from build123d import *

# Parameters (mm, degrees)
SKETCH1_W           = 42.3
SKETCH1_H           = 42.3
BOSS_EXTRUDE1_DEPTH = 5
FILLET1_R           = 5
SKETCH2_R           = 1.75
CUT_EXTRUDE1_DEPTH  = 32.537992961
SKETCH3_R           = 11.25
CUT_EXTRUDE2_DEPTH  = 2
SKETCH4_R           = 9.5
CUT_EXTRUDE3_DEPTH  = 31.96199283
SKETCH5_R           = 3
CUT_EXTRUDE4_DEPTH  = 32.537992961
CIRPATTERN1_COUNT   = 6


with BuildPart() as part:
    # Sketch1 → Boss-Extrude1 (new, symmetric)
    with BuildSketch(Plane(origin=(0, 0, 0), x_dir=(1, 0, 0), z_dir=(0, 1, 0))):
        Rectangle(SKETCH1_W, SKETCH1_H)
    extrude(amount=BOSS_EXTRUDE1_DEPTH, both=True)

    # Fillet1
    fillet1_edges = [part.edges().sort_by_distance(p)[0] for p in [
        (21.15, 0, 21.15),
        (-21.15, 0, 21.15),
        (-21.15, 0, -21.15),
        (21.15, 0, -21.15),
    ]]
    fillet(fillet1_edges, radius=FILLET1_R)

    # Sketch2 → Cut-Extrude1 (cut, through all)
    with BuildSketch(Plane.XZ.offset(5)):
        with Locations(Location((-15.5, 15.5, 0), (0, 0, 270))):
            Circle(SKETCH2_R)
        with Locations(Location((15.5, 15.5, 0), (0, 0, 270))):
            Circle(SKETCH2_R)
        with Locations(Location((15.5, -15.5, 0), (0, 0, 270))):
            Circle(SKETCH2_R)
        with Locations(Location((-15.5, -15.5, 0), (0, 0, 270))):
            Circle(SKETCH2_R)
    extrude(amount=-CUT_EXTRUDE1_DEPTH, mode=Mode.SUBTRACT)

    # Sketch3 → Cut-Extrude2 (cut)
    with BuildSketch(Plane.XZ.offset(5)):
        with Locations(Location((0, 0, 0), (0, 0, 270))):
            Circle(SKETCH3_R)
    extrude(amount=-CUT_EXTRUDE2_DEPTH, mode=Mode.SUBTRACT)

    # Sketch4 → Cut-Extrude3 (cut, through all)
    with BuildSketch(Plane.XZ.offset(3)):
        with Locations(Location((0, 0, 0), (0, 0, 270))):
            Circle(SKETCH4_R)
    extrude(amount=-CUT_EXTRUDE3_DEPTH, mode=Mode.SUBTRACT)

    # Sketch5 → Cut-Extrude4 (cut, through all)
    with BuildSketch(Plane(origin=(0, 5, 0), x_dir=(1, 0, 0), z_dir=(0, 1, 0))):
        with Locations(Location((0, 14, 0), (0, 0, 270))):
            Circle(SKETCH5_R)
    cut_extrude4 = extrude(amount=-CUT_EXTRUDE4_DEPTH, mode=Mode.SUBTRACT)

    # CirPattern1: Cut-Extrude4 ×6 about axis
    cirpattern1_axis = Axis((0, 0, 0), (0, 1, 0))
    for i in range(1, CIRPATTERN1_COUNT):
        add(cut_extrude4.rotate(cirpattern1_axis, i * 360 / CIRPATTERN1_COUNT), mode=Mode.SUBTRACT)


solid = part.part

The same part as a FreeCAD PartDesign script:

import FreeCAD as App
import Part
import Sketcher


def edges_at(feature, points):
    """Names of the edges that pass closest to the given points."""
    edges = feature.Shape.Edges
    near = lambda p: min(range(len(edges)), key=lambda i: edges[i].distToShape(Part.Vertex(*p))[0])
    return sorted({f"Edge{near(p) + 1}" for p in points})


def add_polygon(sketch, points):
    """Adds a closed chain of lines whose ends are joined by coincident constraints."""
    first, n = sketch.GeometryCount, len(points)
    for a, b in zip(points, points[1:] + points[:1]):
        sketch.addGeometry(Part.LineSegment(App.Vector(*a, 0), App.Vector(*b, 0)), False)
    for i in range(n):
        sketch.addConstraint(Sketcher.Constraint("Coincident", first + i, 2, first + (i + 1) % n, 1))

doc = App.newDocument("Part")
params = doc.addObject("Spreadsheet::Sheet", "Params")
for row, (alias, value) in enumerate([
    ("sketch1_width", "42.3 mm"),
    ("pad1_length", "10 mm"),
    ("fillet_radius", "5 mm"),
    ("sketch2_diameter", "3.5 mm"),
    ("sketch3_diameter", "22.5 mm"),
    ("pocket2_length", "2 mm"),
    ("sketch4_diameter", "19 mm"),
    ("sketch5_diameter", "6 mm"),
], start=1):
    params.set(f"A{row}", alias)
    params.set(f"B{row}", "=" + value)
    params.setAlias(f"B{row}", alias)

body = doc.addObject("PartDesign::Body", "Body")

sketch1 = body.newObject("Sketcher::SketchObject", "Sketch")
sketch1.AttachmentSupport = (doc.getObject("XZ_Plane"), [""])
sketch1.MapMode = "FlatFace"
add_polygon(sketch1, [(-21.15, -21.15), (-21.15, 21.15), (21.15, 21.15), (21.15, -21.15)])
sketch1.addConstraint(Sketcher.Constraint("Vertical", 0))
sketch1.addConstraint(Sketcher.Constraint("Horizontal", 1))
sketch1.addConstraint(Sketcher.Constraint("Vertical", 2))
sketch1.addConstraint(Sketcher.Constraint("Horizontal", 3))
sketch1.addConstraint(Sketcher.Constraint("Symmetric", 0, 2, 2, 2, -1, 1))
sketch1.addConstraint(Sketcher.Constraint("Equal", 3, 0))
sketch1.addConstraint(Sketcher.Constraint("DistanceX", 1, 1, 1, 2, 42.3))
sketch1.setExpression("Constraints[10]", "Params.sketch1_width")
pad1 = body.newObject("PartDesign::Pad", "Pad")
pad1.Profile = sketch1
pad1.setExpression("Length", "Params.pad1_length")
pad1.Midplane = True
doc.recompute()

fillet = body.newObject("PartDesign::Fillet", "Fillet")
fillet.Base = (pad1, edges_at(pad1, [
    (21.15, 0, 21.15),
    (-21.15, 0, 21.15),
    (-21.15, 0, -21.15),
    (21.15, 0, -21.15),
]))
fillet.setExpression("Radius", "Params.fillet_radius")

sketch2 = body.newObject("Sketcher::SketchObject", "Sketch001")
sketch2.AttachmentSupport = (doc.getObject("XZ_Plane"), [""])
sketch2.MapMode = "FlatFace"
sketch2.AttachmentOffset = App.Placement(App.Vector(0, 0, 5), App.Rotation())
sketch2.addGeometry(Part.Circle(App.Vector(-15.5, 15.5, 0), App.Vector(0, 0, 1), 1.75), False)
sketch2.addGeometry(Part.Circle(App.Vector(15.5, 15.5, 0), App.Vector(0, 0, 1), 1.75), False)
sketch2.addGeometry(Part.Circle(App.Vector(15.5, -15.5, 0), App.Vector(0, 0, 1), 1.75), False)
sketch2.addGeometry(Part.Circle(App.Vector(-15.5, -15.5, 0), App.Vector(0, 0, 1), 1.75), False)
sketch2.addConstraint(Sketcher.Constraint("Equal", 0, 1))
sketch2.addConstraint(Sketcher.Constraint("Equal", 1, 2))
sketch2.addConstraint(Sketcher.Constraint("Equal", 2, 3))
sketch2.addConstraint(Sketcher.Constraint("Symmetric", 0, 3, 2, 3, -1, 1))
sketch2.addConstraint(Sketcher.Constraint("Symmetric", 1, 3, 3, 3, -1, 1))
sketch2.addConstraint(Sketcher.Constraint("Symmetric", 0, 3, 1, 3, -2))
sketch2.addConstraint(Sketcher.Constraint("Diameter", 0, 3.5))
sketch2.addConstraint(Sketcher.Constraint("DistanceX", 0, 3, 1, 3, 31.0))
sketch2.addConstraint(Sketcher.Constraint("DistanceY", 2, 3, 1, 3, 31.0))
sketch2.setExpression("Constraints[6]", "Params.sketch2_diameter")
pocket1 = body.newObject("PartDesign::Pocket", "Pocket")
pocket1.Profile = sketch2
pocket1.Type = "ThroughAll"

sketch3 = body.newObject("Sketcher::SketchObject", "Sketch002")
sketch3.AttachmentSupport = (doc.getObject("XZ_Plane"), [""])
sketch3.MapMode = "FlatFace"
sketch3.AttachmentOffset = App.Placement(App.Vector(0, 0, 5), App.Rotation())
sketch3.addGeometry(Part.Circle(App.Vector(0, 0, 0), App.Vector(0, 0, 1), 11.25), False)
sketch3.addConstraint(Sketcher.Constraint("Coincident", 0, 3, -1, 1))
sketch3.addConstraint(Sketcher.Constraint("Diameter", 0, 22.5))
sketch3.setExpression("Constraints[1]", "Params.sketch3_diameter")
pocket2 = body.newObject("PartDesign::Pocket", "Pocket001")
pocket2.Profile = sketch3
pocket2.setExpression("Length", "Params.pocket2_length")

sketch4 = body.newObject("Sketcher::SketchObject", "Sketch003")
sketch4.AttachmentSupport = (doc.getObject("XZ_Plane"), [""])
sketch4.MapMode = "FlatFace"
sketch4.AttachmentOffset = App.Placement(App.Vector(0, 0, 3), App.Rotation())
sketch4.addGeometry(Part.Circle(App.Vector(0, 0, 0), App.Vector(0, 0, 1), 9.5), False)
sketch4.addConstraint(Sketcher.Constraint("Coincident", 0, 3, -1, 1))
sketch4.addConstraint(Sketcher.Constraint("Diameter", 0, 19.0))
sketch4.setExpression("Constraints[1]", "Params.sketch4_diameter")
pocket3 = body.newObject("PartDesign::Pocket", "Pocket002")
pocket3.Profile = sketch4
pocket3.Type = "ThroughAll"

sketch5 = body.newObject("Sketcher::SketchObject", "Sketch004")
sketch5.AttachmentSupport = (doc.getObject("XZ_Plane"), [""])
sketch5.MapMode = "FlatFace"
sketch5.AttachmentOffset = App.Placement(App.Vector(0, 0, -5), App.Rotation())
sketch5.addGeometry(Part.Circle(App.Vector(0, -14, 0), App.Vector(0, 0, 1), 3), False)
sketch5.addConstraint(Sketcher.Constraint("PointOnObject", 0, 3, -2))
sketch5.addConstraint(Sketcher.Constraint("Diameter", 0, 6.0))
sketch5.addConstraint(Sketcher.Constraint("DistanceY", 0, 3, -1, 1, 14.0))
sketch5.setExpression("Constraints[1]", "Params.sketch5_diameter")
pocket4 = body.newObject("PartDesign::Pocket", "Pocket003")
pocket4.Profile = sketch5
pocket4.Type = "ThroughAll"
pocket4.Reversed = True
doc.recompute()

polarpattern = body.newObject("PartDesign::PolarPattern", "PolarPattern")
polarpattern.Originals = [pocket4]
polarpattern.Axis = (doc.getObject("Y_Axis"), [""])
polarpattern.Angle = 360
polarpattern.Occurrences = 6
body.Tip = polarpattern

doc.recompute()
